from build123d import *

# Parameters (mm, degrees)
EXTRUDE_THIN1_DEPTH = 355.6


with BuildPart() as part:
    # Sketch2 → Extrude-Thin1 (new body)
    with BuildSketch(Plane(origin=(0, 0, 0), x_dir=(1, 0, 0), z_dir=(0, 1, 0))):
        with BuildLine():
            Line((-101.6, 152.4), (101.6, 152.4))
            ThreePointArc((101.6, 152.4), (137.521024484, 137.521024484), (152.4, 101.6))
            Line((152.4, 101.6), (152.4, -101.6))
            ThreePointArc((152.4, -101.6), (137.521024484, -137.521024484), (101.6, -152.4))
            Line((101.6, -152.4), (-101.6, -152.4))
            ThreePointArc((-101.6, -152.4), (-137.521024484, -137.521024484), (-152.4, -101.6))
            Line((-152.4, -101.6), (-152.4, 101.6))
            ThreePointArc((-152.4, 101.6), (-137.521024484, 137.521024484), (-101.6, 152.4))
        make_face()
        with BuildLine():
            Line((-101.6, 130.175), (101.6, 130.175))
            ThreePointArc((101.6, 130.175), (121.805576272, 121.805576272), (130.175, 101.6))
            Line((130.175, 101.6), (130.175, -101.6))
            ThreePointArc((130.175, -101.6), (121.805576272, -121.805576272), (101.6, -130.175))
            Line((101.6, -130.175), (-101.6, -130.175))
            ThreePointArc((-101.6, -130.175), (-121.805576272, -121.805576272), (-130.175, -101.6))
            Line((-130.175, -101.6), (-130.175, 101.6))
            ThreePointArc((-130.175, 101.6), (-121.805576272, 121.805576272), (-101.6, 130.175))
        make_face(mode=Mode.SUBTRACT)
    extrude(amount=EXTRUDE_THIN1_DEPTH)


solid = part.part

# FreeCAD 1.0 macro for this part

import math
import FreeCAD as App
import Part
import Sketcher

V = App.Vector
Q = App.Units.Quantity

doc = App.newDocument("Part")
body = doc.addObject("PartDesign::Body", "Body")

# Sketch on XZ plane
sketch1 = doc.addObject("Sketcher::SketchObject", "Sketch")
body.addObject(sketch1)
sketch1.AttachmentSupport = (doc.XZ_Plane, [""])
sketch1.MapMode = "FlatFace"
sketch1.addGeometry([
    Part.LineSegment(V(102, -152, 0), V(-102, -152, 0)),  # 0
    Part.ArcOfCircle(Part.Circle(V(-102, -102, 0), V(0, 0, 1), 51), math.radians(-180), math.radians(-90)),  # 1
    Part.LineSegment(V(-152, -102, 0), V(-152, 102, 0)),  # 2
    Part.ArcOfCircle(Part.Circle(V(-102, 102, 0), V(0, 0, 1), 51), math.radians(90), math.radians(180)),  # 3
    Part.LineSegment(V(-102, 152, 0), V(102, 152, 0)),  # 4
    Part.ArcOfCircle(Part.Circle(V(102, 102, 0), V(0, 0, 1), 51), math.radians(0), math.radians(90)),  # 5
    Part.LineSegment(V(152, 102, 0), V(152, -102, 0)),  # 6
    Part.ArcOfCircle(Part.Circle(V(102, -102, 0), V(0, 0, 1), 51), math.radians(-90), math.radians(0)),  # 7
    Part.LineSegment(V(-102, -130, 0), V(102, -130, 0)),  # 8
    Part.ArcOfCircle(Part.Circle(V(102, -102, 0), V(0, 0, 1), 29), math.radians(-90), math.radians(0)),  # 9
    Part.LineSegment(V(130, -102, 0), V(130, 102, 0)),  # 10
    Part.ArcOfCircle(Part.Circle(V(102, 102, 0), V(0, 0, 1), 29), math.radians(0), math.radians(90)),  # 11
    Part.LineSegment(V(102, 130, 0), V(-102, 130, 0)),  # 12
    Part.ArcOfCircle(Part.Circle(V(-102, 102, 0), V(0, 0, 1), 29), math.radians(90), math.radians(180)),  # 13
    Part.LineSegment(V(-130, 102, 0), V(-130, -102, 0)),  # 14
    Part.ArcOfCircle(Part.Circle(V(-102, -102, 0), V(0, 0, 1), 29), math.radians(-180), math.radians(-90)),  # 15
], False)
sketch1.addConstraint([
    Sketcher.Constraint("Tangent", 0, 2, 1, 2),
    Sketcher.Constraint("Tangent", 1, 1, 2, 1),
    Sketcher.Constraint("Tangent", 2, 2, 3, 2),
    Sketcher.Constraint("Tangent", 3, 1, 4, 1),
    Sketcher.Constraint("Tangent", 4, 2, 5, 2),
    Sketcher.Constraint("Tangent", 5, 1, 6, 1),
    Sketcher.Constraint("Tangent", 6, 2, 7, 2),
    Sketcher.Constraint("Tangent", 7, 1, 0, 1),
    Sketcher.Constraint("Tangent", 8, 2, 9, 1),
    Sketcher.Constraint("Tangent", 9, 2, 10, 1),
    Sketcher.Constraint("Tangent", 10, 2, 11, 1),
    Sketcher.Constraint("Tangent", 11, 2, 12, 1),
    Sketcher.Constraint("Tangent", 12, 2, 13, 1),
    Sketcher.Constraint("Tangent", 13, 2, 14, 1),
    Sketcher.Constraint("Tangent", 14, 2, 15, 1),
    Sketcher.Constraint("Tangent", 15, 2, 8, 1),
    Sketcher.Constraint("Horizontal", 0),
    Sketcher.Constraint("Vertical", 2),
    Sketcher.Constraint("Horizontal", 4),
    Sketcher.Constraint("Vertical", 6),
    Sketcher.Constraint("Horizontal", 8),
    Sketcher.Constraint("Vertical", 10),
    Sketcher.Constraint("Horizontal", 12),
    Sketcher.Constraint("Vertical", 14),
    Sketcher.Constraint("Coincident", 9, 3, 7, 3),
    Sketcher.Constraint("Coincident", 11, 3, 5, 3),
    Sketcher.Constraint("Coincident", 13, 3, 3, 3),
    Sketcher.Constraint("Equal", 1, 3),
    Sketcher.Constraint("Equal", 3, 5),
    Sketcher.Constraint("Equal", 5, 7),
    Sketcher.Constraint("Equal", 13, 15),
    Sketcher.Constraint("Symmetric", 1, 3, 5, 3, -1, 1),
    Sketcher.Constraint("Equal", 12, 2),
    Sketcher.Constraint("Radius", 1, Q("2 in")),
    Sketcher.Constraint("DistanceX", 0, 2, 0, 1, Q("8 in")),
    Sketcher.Constraint("Radius", 9, Q("1.125 in")),
])
pad1 = doc.addObject("PartDesign::Pad", "Pad")
body.addObject(pad1)
pad1.Profile = sketch1
pad1.Length = Q("14 in")
pad1.Reversed = True

doc.recompute()
